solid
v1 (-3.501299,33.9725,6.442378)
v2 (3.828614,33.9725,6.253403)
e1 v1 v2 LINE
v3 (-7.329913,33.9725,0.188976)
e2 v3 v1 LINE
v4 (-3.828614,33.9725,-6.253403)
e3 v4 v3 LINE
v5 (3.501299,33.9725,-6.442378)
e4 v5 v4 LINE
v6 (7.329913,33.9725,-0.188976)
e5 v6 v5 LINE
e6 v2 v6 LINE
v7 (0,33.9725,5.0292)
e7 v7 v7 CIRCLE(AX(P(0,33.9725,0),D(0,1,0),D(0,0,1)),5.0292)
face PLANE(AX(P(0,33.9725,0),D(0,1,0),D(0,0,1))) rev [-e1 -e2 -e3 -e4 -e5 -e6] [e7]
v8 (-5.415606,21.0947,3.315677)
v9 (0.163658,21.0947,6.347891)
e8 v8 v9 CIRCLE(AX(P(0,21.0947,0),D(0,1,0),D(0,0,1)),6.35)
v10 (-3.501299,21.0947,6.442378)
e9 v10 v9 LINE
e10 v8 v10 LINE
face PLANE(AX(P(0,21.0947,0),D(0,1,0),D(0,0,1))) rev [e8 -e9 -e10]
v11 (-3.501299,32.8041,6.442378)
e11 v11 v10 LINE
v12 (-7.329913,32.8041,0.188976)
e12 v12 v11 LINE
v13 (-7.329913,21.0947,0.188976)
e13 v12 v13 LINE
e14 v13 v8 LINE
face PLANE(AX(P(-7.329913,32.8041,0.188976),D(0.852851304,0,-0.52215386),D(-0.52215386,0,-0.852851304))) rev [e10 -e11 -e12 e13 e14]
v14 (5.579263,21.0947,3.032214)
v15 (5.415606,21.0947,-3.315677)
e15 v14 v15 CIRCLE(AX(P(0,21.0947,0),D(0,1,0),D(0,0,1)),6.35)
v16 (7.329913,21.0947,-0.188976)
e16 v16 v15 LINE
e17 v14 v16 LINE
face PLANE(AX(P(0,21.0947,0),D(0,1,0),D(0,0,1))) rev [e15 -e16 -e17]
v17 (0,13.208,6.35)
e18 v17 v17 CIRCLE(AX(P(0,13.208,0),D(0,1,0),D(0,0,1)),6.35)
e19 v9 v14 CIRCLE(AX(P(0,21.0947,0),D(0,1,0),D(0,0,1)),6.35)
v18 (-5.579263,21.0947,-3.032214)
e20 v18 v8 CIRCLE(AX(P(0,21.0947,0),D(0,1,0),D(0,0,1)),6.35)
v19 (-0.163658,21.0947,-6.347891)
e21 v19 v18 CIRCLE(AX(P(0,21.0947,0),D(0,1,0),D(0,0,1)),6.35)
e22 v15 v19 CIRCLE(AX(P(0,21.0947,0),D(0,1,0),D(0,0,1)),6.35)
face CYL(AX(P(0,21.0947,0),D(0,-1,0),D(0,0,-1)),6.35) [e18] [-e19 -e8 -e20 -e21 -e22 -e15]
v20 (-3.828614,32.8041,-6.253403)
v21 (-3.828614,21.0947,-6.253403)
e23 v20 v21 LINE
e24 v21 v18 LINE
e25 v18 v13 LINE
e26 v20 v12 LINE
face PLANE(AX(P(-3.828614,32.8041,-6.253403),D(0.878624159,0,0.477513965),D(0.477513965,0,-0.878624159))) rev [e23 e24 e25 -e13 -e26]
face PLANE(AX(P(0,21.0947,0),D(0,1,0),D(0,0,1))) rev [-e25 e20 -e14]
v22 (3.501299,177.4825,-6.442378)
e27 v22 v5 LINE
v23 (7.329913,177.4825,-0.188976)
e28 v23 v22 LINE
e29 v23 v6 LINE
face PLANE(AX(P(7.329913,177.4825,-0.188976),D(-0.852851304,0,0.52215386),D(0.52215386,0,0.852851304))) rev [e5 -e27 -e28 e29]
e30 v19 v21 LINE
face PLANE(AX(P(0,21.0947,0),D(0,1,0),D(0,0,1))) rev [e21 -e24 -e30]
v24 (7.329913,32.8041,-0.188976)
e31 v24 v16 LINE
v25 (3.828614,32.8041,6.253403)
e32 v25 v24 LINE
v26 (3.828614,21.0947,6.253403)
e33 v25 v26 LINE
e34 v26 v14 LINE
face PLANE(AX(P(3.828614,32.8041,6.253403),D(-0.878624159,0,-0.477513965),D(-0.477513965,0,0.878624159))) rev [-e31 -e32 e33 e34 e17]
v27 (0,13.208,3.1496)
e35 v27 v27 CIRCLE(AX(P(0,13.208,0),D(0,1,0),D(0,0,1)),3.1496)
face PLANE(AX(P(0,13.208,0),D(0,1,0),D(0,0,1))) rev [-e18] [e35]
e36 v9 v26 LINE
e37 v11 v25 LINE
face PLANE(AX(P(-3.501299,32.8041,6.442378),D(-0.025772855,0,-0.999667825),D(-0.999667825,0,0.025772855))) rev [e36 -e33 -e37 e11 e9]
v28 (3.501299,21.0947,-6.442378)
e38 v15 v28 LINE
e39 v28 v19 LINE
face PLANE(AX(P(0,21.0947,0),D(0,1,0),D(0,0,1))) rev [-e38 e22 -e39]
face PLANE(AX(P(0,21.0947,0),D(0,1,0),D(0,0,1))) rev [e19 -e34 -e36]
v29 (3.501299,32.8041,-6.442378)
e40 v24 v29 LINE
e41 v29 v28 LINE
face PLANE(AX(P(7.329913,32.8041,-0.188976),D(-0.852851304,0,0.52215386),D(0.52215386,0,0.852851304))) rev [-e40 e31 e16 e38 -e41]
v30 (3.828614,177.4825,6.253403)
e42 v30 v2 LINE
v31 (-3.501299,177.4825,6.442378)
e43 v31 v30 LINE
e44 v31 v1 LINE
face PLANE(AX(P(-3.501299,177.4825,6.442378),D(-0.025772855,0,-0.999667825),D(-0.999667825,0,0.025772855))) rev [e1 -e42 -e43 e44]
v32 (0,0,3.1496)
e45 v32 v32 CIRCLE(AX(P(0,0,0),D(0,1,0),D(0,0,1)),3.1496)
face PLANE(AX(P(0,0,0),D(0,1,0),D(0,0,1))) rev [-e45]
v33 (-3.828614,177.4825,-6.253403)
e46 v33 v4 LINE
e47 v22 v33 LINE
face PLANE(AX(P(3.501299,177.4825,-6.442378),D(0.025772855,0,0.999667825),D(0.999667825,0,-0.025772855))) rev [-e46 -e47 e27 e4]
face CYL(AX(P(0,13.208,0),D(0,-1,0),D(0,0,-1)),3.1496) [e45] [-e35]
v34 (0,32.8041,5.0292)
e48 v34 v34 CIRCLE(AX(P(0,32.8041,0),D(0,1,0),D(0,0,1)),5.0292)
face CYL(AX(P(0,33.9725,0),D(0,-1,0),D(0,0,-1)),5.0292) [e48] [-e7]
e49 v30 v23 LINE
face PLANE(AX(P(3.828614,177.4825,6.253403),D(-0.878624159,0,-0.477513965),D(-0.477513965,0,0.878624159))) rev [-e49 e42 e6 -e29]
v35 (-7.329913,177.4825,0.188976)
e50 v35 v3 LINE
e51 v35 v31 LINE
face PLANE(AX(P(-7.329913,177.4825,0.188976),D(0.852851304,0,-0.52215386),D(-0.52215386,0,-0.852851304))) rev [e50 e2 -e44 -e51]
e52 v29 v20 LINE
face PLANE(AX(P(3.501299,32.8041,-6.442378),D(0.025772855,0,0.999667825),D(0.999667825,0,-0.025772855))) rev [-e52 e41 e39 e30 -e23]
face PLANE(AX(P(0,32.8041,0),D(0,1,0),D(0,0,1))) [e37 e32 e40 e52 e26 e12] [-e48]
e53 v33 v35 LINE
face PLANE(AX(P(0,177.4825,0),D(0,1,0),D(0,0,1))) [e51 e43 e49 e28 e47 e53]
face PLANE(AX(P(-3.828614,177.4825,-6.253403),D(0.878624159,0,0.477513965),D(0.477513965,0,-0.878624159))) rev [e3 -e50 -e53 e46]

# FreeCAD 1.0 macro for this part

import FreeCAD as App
import Part
import Sketcher

V = App.Vector
Q = App.Units.Quantity

doc = App.newDocument("Part")
params = doc.addObject("Spreadsheet::Sheet", "Params")
for row, (alias, value) in enumerate([
    ("sketch1_diameter", "0.248 in"),
    ("pad1_length", "0.52 in"),
    ("sketch2_diameter", "0.5 in"),
    ("pad2_length", "0.3105 in"),
    ("pad3_length", "0.461 in"),
    ("sketch4_diameter", "0.396 in"),
    ("pad4_length", "0.046 in"),
    ("pad5_length", "5.65 in"),
], start=1):
    params.set(f"A{row}", alias)
    params.set(f"B{row}", "=" + value)
    params.setAlias(f"B{row}", alias)

body = doc.addObject("PartDesign::Body", "Body")

# Sketch on XZ plane
sketch1 = doc.addObject("Sketcher::SketchObject", "Sketch")
body.addObject(sketch1)
sketch1.AttachmentSupport = (doc.XZ_Plane, [""])
sketch1.MapMode = "FlatFace"
sketch1.addGeometry(Part.Circle(V(0, 0, 0), V(0, 0, 1), 3.1), False)
sketch1.addConstraint(Sketcher.Constraint("Coincident", 0, 3, -1, 1))
sketch1.addConstraint(Sketcher.Constraint("Diameter", 0, Q("0.248 in")))
sketch1.setExpression("Constraints[1]", "Params.sketch1_diameter")
pad1 = doc.addObject("PartDesign::Pad", "Pad")
body.addObject(pad1)
pad1.Profile = sketch1
pad1.setExpression("Length", "Params.pad1_length")
pad1.Reversed = True

# Sketch on XZ plane
sketch2 = doc.addObject("Sketcher::SketchObject", "Sketch001")
body.addObject(sketch2)
sketch2.AttachmentSupport = (doc.XZ_Plane, [""])
sketch2.MapMode = "FlatFace"
sketch2.AttachmentOffset = App.Placement(V(0, 0, -0.52 * 25.4), App.Rotation())
sketch2.addGeometry(Part.Circle(V(0, 0, 0), V(0, 0, 1), 6), False)
sketch2.addConstraint(Sketcher.Constraint("Coincident", 0, 3, -1, 1))
sketch2.addConstraint(Sketcher.Constraint("Diameter", 0, Q("0.5 in")))
sketch2.setExpression("Constraints[1]", "Params.sketch2_diameter")
pad2 = doc.addObject("PartDesign::Pad", "Pad001")
body.addObject(pad2)
pad2.Profile = sketch2
pad2.setExpression("Length", "Params.pad2_length")
pad2.Reversed = True

# Sketch on XZ plane
sketch3 = doc.addObject("Sketcher::SketchObject", "Sketch002")
body.addObject(sketch3)
sketch3.AttachmentSupport = (doc.XZ_Plane, [""])
sketch3.MapMode = "FlatFace"
sketch3.AttachmentOffset = App.Placement(V(0, 0, -0.8305 * 25.4), App.Rotation())
sketch3.addGeometry(Part.LineSegment(V(4, 6, 0), V(7, 0, 0)), False)
sketch3.addGeometry(Part.LineSegment(V(7, 0, 0), V(4, -6, 0)), False)
sketch3.addGeometry(Part.LineSegment(V(4, -6, 0), V(-4, -6, 0)), False)
sketch3.addGeometry(Part.LineSegment(V(-4, -6, 0), V(-7, 0, 0)), False)
sketch3.addGeometry(Part.LineSegment(V(-7, 0, 0), V(-4, 6, 0)), False)
sketch3.addGeometry(Part.LineSegment(V(-4, 6, 0), V(4, 6, 0)), False)
sketch3.addConstraint(Sketcher.Constraint("Coincident", 0, 2, 1, 1))
sketch3.addConstraint(Sketcher.Constraint("Coincident", 1, 2, 2, 1))
sketch3.addConstraint(Sketcher.Constraint("Coincident", 2, 2, 3, 1))
sketch3.addConstraint(Sketcher.Constraint("Coincident", 3, 2, 4, 1))
sketch3.addConstraint(Sketcher.Constraint("Coincident", 4, 2, 5, 1))
sketch3.addConstraint(Sketcher.Constraint("Coincident", 5, 2, 0, 1))
sketch3.addConstraint(Sketcher.Constraint("Symmetric", 0, 2, 3, 2, -1, 1))
sketch3.addConstraint(Sketcher.Constraint("Symmetric", 1, 2, 4, 2, -1, 1))
sketch3.addConstraint(Sketcher.Constraint("Symmetric", 2, 2, 5, 2, -1, 1))
sketch3.addConstraint(Sketcher.Constraint("Equal", 0, 1))
sketch3.addConstraint(Sketcher.Constraint("Equal", 1, 2))
sketch3.addConstraint(Sketcher.Constraint("DistanceX", -1, 1, 1, 2, Q("3.501299 mm")))
sketch3.addConstraint(Sketcher.Constraint("DistanceX", 3, 2, 2, 2, Q("3.501299 mm")))
sketch3.addConstraint(Sketcher.Constraint("Distance", 0, Q("7.332348 mm")))
sketch3.addConstraint(Sketcher.Constraint("DistanceY", 1, 2, -1, 1, Q("6.442378 mm")))
pad3 = doc.addObject("PartDesign::Pad", "Pad002")
body.addObject(pad3)
pad3.Profile = sketch3
pad3.setExpression("Length", "Params.pad3_length")
pad3.Reversed = True

# Sketch on XZ plane
sketch4 = doc.addObject("Sketcher::SketchObject", "Sketch003")
body.addObject(sketch4)
sketch4.AttachmentSupport = (doc.XZ_Plane, [""])
sketch4.MapMode = "FlatFace"
sketch4.AttachmentOffset = App.Placement(V(0, 0, -1.2915 * 25.4), App.Rotation())
sketch4.addGeometry(Part.Circle(V(0, 0, 0), V(0, 0, 1), 5), False)
sketch4.addConstraint(Sketcher.Constraint("Coincident", 0, 3, -1, 1))
sketch4.addConstraint(Sketcher.Constraint("Diameter", 0, Q("0.396 in")))
sketch4.setExpression("Constraints[1]", "Params.sketch4_diameter")
pad4 = doc.addObject("PartDesign::Pad", "Pad003")
body.addObject(pad4)
pad4.Profile = sketch4
pad4.setExpression("Length", "Params.pad4_length")
pad4.Reversed = True

# Sketch on XZ plane
sketch5 = doc.addObject("Sketcher::SketchObject", "Sketch004")
body.addObject(sketch5)
sketch5.AttachmentSupport = (doc.XZ_Plane, [""])
sketch5.MapMode = "FlatFace"
sketch5.AttachmentOffset = App.Placement(V(0, 0, -1.3375 * 25.4), App.Rotation())
sketch5.addGeometry(Part.LineSegment(V(-4, -6, 0), V(-7, 0, 0)), False)
sketch5.addGeometry(Part.LineSegment(V(-7, 0, 0), V(-4, 6, 0)), False)
sketch5.addGeometry(Part.LineSegment(V(-4, 6, 0), V(4, 6, 0)), False)
sketch5.addGeometry(Part.LineSegment(V(4, 6, 0), V(7, 0, 0)), False)
sketch5.addGeometry(Part.LineSegment(V(7, 0, 0), V(4, -6, 0)), False)
sketch5.addGeometry(Part.LineSegment(V(4, -6, 0), V(-4, -6, 0)), False)
sketch5.addConstraint(Sketcher.Constraint("Coincident", 0, 2, 1, 1))
sketch5.addConstraint(Sketcher.Constraint("Coincident", 1, 2, 2, 1))
sketch5.addConstraint(Sketcher.Constraint("Coincident", 2, 2, 3, 1))
sketch5.addConstraint(Sketcher.Constraint("Coincident", 3, 2, 4, 1))
sketch5.addConstraint(Sketcher.Constraint("Coincident", 4, 2, 5, 1))
sketch5.addConstraint(Sketcher.Constraint("Coincident", 5, 2, 0, 1))
sketch5.addConstraint(Sketcher.Constraint("Symmetric", 0, 2, 3, 2, -1, 1))
sketch5.addConstraint(Sketcher.Constraint("Symmetric", 1, 2, 4, 2, -1, 1))
sketch5.addConstraint(Sketcher.Constraint("Symmetric", 2, 2, 5, 2, -1, 1))
sketch5.addConstraint(Sketcher.Constraint("Equal", 0, 1))
sketch5.addConstraint(Sketcher.Constraint("Equal", 1, 2))
sketch5.addConstraint(Sketcher.Constraint("DistanceX", 1, 2, -1, 1, Q("3.501299 mm")))
sketch5.addConstraint(Sketcher.Constraint("DistanceX", 2, 2, 3, 2, Q("3.501299 mm")))
sketch5.addConstraint(Sketcher.Constraint("Distance", 0, Q("7.332348 mm")))
sketch5.addConstraint(Sketcher.Constraint("DistanceY", -1, 1, 1, 2, Q("6.442378 mm")))
pad5 = doc.addObject("PartDesign::Pad", "Pad004")
body.addObject(pad5)
pad5.Profile = sketch5
pad5.setExpression("Length", "Params.pad5_length")
pad5.Reversed = True

doc.recompute()
